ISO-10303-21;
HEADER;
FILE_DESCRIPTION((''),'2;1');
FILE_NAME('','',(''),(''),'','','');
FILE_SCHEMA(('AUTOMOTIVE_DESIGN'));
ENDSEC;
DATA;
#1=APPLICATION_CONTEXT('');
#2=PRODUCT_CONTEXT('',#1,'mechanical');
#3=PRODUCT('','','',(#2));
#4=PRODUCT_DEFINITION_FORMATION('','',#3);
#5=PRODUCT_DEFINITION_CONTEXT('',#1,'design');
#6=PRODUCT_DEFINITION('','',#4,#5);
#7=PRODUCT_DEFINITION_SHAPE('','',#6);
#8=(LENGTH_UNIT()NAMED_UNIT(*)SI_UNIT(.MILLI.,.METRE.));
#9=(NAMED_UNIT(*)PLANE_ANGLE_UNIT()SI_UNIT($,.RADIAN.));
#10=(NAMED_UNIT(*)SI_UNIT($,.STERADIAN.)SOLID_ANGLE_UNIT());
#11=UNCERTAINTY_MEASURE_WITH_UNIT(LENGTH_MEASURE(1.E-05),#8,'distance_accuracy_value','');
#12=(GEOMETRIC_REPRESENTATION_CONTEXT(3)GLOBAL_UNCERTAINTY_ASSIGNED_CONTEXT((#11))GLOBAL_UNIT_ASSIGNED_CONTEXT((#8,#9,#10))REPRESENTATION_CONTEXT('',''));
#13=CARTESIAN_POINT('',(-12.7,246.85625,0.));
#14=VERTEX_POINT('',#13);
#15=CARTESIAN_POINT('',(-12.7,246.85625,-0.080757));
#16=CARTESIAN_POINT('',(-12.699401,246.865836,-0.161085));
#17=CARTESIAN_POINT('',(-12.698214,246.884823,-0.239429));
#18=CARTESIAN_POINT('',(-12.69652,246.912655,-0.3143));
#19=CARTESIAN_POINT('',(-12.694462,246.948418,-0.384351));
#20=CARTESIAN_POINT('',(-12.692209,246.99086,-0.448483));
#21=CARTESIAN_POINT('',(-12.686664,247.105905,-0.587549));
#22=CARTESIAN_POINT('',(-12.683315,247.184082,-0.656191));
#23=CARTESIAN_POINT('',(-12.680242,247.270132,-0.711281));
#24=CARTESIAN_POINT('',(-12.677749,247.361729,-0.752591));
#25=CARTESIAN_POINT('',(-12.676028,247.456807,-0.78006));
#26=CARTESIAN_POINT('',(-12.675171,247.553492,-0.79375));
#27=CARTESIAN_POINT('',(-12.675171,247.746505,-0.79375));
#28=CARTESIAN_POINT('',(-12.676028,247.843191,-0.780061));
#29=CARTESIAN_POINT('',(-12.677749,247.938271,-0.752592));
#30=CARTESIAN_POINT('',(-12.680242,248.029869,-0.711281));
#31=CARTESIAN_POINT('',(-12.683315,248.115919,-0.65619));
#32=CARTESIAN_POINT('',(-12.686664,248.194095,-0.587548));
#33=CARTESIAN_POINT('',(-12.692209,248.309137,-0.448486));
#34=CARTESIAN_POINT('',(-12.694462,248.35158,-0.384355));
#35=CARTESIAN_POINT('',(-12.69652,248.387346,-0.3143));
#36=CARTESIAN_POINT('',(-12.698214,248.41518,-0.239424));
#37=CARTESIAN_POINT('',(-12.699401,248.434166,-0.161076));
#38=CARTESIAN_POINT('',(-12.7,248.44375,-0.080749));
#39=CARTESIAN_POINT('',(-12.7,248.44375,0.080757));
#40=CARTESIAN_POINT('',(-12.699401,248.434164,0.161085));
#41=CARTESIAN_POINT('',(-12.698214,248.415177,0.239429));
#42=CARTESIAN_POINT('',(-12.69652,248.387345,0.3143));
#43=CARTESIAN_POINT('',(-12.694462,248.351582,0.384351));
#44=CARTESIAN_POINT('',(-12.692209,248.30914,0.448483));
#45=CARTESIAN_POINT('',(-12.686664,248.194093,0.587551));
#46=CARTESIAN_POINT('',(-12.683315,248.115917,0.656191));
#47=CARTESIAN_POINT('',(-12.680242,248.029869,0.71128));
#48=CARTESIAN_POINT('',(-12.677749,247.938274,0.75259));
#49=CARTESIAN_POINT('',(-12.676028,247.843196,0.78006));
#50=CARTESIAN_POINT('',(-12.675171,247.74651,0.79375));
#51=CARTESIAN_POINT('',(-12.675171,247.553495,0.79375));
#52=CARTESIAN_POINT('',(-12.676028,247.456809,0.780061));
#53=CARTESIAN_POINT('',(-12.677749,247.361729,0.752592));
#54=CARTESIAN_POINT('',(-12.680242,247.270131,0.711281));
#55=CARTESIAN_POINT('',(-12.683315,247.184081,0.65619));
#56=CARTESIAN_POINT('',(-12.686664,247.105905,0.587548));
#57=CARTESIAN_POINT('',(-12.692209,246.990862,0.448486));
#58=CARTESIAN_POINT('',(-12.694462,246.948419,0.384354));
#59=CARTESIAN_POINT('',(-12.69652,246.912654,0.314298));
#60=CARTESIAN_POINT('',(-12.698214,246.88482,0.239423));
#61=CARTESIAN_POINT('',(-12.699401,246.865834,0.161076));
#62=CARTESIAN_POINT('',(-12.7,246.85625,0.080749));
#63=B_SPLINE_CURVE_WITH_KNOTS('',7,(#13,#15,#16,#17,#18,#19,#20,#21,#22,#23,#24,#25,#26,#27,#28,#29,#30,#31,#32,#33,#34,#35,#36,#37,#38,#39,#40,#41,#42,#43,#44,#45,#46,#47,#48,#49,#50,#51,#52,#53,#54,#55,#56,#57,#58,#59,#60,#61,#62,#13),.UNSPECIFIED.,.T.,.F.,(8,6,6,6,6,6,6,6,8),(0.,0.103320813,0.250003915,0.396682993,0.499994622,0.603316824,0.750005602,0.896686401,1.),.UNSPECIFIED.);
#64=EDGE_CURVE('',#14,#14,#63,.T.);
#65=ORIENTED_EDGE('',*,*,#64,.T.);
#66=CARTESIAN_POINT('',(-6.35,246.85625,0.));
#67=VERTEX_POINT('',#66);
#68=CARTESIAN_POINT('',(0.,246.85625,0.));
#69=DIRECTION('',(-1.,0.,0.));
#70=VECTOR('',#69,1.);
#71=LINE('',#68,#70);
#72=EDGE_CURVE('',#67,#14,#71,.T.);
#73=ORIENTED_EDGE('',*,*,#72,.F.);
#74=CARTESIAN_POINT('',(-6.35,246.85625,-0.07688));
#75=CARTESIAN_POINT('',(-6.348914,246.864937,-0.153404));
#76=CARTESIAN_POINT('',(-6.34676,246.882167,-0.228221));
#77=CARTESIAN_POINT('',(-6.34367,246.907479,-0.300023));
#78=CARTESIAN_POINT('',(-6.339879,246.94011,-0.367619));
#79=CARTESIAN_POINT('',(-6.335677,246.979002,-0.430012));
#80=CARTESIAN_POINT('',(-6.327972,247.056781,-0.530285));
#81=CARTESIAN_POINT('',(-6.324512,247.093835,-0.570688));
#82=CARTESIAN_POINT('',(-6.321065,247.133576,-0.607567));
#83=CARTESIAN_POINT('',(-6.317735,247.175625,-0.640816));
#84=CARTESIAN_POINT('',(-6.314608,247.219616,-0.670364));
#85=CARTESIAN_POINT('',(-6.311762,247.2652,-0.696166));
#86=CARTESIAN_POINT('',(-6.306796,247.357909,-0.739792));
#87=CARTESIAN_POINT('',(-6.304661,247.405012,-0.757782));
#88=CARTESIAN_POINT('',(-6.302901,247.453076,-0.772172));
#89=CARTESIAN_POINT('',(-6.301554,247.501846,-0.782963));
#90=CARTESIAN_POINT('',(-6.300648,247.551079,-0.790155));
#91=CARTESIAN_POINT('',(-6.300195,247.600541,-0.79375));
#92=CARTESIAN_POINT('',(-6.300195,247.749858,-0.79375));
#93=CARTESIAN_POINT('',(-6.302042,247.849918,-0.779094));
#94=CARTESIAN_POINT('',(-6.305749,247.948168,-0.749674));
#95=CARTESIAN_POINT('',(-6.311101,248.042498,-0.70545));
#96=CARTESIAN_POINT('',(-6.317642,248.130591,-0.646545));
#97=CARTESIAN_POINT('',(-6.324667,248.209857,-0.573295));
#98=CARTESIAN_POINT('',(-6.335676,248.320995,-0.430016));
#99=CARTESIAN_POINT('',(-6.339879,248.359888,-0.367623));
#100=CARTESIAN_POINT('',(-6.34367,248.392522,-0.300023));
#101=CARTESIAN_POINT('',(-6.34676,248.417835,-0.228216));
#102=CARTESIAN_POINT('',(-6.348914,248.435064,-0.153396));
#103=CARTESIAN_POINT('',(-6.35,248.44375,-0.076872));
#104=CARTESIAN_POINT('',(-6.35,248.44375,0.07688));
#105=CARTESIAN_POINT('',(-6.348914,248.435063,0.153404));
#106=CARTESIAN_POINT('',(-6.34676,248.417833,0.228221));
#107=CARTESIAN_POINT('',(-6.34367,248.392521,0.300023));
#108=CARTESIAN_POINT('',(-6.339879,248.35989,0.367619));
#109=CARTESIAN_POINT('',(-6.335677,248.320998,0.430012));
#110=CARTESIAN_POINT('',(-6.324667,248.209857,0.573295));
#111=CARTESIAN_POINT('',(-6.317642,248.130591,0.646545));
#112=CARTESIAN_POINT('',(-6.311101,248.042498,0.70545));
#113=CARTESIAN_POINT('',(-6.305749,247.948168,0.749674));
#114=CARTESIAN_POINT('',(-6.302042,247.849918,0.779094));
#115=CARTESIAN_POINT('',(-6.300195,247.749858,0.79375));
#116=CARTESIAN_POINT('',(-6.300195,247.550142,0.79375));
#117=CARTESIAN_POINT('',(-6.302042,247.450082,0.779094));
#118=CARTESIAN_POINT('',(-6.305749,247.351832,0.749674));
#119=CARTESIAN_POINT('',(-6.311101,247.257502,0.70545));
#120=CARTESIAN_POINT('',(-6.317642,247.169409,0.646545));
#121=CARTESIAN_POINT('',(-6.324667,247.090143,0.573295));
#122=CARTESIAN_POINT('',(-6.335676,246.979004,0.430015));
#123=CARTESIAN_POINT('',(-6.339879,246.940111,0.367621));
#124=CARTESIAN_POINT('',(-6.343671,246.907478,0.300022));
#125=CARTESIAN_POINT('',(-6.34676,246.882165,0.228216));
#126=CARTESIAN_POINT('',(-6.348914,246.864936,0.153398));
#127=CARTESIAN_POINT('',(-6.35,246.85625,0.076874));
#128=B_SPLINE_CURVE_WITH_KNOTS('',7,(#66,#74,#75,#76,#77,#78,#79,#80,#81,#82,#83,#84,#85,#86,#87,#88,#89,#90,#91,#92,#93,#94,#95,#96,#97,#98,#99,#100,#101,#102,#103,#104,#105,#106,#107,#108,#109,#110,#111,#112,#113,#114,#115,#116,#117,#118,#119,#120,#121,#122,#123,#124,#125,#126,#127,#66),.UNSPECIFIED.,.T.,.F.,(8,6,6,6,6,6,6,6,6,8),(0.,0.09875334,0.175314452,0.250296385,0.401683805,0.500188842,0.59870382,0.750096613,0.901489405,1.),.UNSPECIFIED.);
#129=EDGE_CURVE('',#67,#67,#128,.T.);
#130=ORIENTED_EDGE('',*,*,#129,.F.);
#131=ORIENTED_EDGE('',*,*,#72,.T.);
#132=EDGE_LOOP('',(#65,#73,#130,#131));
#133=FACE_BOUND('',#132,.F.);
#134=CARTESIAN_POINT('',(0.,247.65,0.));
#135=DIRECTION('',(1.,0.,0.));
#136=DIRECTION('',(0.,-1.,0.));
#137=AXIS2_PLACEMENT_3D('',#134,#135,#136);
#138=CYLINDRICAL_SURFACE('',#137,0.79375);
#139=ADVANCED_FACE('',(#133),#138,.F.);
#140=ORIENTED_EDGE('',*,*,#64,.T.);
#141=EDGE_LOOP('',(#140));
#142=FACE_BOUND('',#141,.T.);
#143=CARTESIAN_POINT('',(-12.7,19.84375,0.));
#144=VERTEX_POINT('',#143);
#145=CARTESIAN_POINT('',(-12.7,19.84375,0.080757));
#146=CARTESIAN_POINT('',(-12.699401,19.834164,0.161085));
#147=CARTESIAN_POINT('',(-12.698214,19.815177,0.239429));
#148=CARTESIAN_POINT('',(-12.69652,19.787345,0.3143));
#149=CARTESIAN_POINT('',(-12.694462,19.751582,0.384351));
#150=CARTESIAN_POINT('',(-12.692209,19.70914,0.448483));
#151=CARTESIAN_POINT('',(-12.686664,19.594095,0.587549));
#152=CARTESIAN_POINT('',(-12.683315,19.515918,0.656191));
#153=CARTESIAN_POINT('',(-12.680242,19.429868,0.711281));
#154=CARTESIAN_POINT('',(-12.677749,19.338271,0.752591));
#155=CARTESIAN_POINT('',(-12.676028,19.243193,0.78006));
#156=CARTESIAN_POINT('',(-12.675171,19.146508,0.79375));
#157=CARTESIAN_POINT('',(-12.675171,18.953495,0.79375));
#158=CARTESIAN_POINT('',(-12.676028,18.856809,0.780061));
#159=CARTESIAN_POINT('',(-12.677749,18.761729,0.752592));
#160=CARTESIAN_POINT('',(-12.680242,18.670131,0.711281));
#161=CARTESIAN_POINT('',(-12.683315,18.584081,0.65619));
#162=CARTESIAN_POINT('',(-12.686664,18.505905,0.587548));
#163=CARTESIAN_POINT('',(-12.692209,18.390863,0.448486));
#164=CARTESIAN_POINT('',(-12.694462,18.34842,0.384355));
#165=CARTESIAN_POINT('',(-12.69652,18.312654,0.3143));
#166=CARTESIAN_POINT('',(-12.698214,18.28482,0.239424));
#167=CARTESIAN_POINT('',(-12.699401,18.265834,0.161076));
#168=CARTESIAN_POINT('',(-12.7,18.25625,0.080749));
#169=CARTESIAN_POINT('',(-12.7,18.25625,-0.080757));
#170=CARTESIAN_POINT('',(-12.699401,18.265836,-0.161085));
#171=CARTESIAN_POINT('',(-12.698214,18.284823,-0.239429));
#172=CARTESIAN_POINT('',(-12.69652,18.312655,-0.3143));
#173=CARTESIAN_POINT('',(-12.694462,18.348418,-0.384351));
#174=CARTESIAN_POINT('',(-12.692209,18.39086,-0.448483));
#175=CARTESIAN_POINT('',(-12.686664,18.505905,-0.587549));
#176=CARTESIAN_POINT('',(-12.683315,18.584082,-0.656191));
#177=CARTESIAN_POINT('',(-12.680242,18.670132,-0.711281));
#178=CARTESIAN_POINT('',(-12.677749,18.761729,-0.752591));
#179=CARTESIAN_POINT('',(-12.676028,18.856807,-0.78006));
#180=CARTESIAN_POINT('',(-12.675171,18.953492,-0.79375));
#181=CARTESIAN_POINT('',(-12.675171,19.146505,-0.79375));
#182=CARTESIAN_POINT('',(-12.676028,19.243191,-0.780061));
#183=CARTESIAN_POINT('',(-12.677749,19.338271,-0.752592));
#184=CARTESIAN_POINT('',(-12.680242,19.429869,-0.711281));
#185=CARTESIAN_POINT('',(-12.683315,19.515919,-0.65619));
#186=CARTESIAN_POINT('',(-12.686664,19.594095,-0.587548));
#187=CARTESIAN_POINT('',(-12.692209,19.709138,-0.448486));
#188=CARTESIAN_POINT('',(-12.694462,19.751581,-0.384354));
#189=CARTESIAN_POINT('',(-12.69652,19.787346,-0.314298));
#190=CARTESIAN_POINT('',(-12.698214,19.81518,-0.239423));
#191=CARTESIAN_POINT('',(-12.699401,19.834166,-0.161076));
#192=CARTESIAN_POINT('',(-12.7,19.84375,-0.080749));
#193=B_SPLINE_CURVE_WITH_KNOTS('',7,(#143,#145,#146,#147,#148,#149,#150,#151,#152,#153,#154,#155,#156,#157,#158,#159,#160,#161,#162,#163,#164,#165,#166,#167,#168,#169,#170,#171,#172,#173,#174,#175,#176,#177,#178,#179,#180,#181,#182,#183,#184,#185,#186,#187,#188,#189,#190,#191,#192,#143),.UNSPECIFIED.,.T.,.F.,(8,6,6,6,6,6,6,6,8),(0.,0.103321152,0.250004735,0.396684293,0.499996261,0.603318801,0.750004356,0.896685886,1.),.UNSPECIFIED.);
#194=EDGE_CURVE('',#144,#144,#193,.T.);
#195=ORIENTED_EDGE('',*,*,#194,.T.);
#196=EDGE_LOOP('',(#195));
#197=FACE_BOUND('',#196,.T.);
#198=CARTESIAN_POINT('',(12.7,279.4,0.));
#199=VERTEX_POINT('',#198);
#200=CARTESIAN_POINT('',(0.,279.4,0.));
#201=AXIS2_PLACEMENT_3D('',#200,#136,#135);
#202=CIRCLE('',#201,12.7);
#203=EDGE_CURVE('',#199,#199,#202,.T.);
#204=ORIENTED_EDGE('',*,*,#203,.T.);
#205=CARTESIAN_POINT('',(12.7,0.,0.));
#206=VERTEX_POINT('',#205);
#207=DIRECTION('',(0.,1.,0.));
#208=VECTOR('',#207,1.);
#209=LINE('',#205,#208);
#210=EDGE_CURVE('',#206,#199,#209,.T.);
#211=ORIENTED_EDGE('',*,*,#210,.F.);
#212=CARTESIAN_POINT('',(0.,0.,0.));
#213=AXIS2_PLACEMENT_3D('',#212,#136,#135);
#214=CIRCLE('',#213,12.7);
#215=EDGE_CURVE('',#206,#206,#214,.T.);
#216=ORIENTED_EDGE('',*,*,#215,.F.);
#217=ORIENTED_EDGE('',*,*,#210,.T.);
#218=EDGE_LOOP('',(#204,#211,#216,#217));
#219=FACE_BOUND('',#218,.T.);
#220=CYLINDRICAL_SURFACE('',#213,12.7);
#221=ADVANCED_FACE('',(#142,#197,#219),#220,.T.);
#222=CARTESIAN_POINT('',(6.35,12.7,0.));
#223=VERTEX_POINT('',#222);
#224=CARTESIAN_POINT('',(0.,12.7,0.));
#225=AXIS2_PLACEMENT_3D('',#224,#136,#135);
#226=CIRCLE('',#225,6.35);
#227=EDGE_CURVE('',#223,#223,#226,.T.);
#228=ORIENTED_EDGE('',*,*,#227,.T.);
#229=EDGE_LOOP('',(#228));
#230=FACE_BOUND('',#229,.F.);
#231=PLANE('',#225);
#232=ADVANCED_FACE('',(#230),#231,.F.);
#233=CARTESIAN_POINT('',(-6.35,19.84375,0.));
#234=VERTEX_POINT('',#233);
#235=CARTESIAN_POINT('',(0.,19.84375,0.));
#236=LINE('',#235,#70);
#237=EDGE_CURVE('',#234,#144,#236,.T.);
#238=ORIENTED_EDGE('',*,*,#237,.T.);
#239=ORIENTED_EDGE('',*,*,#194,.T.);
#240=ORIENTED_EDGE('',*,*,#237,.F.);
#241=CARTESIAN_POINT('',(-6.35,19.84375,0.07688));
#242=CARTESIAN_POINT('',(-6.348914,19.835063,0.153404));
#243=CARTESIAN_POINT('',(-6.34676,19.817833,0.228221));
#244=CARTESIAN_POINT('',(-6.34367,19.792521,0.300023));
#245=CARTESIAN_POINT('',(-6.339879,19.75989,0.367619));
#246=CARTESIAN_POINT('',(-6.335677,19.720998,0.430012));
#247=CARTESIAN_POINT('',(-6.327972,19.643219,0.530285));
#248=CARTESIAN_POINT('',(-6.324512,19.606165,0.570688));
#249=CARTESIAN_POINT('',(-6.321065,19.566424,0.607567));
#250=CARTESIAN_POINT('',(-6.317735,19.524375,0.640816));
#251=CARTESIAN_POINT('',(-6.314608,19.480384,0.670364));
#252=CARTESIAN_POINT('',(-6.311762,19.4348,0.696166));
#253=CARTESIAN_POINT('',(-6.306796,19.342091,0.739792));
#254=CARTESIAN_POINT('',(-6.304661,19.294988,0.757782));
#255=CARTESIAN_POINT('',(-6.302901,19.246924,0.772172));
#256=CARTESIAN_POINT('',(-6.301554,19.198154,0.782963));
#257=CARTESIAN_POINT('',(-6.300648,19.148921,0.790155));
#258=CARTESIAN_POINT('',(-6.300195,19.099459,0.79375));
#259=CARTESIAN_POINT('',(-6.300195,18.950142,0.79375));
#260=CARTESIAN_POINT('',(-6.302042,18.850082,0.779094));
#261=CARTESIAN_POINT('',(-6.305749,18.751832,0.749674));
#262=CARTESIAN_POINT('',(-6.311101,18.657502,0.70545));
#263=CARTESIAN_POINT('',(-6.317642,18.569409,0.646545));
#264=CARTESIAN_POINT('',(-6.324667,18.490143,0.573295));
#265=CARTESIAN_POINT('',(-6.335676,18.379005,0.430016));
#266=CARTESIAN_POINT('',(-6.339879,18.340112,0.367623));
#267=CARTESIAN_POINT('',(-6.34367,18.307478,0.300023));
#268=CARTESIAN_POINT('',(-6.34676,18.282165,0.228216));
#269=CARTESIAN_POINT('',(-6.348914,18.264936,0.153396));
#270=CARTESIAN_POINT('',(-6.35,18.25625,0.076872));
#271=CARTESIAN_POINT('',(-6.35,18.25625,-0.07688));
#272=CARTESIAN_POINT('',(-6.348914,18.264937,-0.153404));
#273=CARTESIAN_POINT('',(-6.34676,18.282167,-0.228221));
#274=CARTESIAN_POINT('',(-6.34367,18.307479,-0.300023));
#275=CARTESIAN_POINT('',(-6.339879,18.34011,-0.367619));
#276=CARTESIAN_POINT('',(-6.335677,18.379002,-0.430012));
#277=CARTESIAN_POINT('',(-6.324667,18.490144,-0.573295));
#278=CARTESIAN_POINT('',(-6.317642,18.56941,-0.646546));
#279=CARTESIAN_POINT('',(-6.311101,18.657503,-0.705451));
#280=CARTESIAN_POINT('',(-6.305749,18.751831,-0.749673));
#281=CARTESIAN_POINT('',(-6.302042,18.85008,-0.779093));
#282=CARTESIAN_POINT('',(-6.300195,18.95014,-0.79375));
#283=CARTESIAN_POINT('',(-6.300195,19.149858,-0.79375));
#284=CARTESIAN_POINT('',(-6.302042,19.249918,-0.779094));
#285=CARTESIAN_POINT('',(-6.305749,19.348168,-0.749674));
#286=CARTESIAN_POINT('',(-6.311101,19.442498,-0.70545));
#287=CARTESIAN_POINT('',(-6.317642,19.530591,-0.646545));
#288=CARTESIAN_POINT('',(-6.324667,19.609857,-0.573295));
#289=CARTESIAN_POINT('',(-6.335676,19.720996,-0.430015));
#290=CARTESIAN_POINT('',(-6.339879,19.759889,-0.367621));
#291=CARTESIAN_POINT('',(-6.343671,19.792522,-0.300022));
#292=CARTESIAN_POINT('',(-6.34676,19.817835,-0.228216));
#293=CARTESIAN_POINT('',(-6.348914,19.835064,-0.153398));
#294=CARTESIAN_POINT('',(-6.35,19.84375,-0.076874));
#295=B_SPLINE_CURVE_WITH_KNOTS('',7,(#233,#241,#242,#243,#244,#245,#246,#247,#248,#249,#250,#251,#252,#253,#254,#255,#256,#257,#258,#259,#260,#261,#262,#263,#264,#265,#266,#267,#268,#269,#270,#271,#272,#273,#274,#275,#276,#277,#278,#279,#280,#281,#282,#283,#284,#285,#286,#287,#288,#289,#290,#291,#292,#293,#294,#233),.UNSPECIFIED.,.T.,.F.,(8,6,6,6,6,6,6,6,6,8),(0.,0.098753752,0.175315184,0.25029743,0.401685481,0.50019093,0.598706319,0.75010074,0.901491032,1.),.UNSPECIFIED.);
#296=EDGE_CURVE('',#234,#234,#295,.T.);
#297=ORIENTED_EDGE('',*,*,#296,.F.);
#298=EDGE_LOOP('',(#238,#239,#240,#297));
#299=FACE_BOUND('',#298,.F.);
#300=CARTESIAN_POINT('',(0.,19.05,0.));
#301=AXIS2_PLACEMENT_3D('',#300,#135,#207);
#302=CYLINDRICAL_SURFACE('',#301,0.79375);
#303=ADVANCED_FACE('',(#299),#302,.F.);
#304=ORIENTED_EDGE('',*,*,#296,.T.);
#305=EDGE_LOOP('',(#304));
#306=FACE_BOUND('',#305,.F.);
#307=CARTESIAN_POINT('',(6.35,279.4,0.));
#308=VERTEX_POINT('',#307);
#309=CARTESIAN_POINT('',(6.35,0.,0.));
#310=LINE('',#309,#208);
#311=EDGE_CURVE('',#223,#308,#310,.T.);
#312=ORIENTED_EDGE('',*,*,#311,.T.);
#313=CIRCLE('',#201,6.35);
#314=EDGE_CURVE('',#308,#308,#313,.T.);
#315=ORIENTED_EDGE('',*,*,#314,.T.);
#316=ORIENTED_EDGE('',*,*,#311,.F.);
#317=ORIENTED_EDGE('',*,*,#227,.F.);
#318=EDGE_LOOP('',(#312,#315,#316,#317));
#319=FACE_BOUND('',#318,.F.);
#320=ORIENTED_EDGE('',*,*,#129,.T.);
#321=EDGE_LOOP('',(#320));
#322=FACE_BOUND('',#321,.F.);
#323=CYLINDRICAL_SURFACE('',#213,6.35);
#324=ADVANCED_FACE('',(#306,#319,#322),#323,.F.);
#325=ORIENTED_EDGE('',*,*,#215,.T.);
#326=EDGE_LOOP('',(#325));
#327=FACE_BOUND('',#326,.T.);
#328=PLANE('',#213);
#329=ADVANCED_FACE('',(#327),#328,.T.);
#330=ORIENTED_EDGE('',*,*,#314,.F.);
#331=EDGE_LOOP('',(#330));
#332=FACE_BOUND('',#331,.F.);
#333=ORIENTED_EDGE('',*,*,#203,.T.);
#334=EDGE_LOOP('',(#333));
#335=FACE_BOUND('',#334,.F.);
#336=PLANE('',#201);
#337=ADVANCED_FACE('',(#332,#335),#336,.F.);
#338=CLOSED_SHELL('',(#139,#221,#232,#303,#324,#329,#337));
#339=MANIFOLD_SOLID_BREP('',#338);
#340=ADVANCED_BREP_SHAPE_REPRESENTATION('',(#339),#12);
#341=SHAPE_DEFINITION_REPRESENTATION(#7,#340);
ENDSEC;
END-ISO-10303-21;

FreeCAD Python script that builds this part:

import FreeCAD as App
import Part
import Sketcher

V = App.Vector
Q = App.Units.Quantity

doc = App.newDocument("Part")
body = doc.addObject("PartDesign::Body", "Body")

sketch1 = body.newObject("Sketcher::SketchObject", "Sketch")
sketch1.AttachmentSupport = (doc.getObject("XZ_Plane"), [""])
sketch1.MapMode = "FlatFace"
sketch1.addGeometry(Part.Circle(V(0, 0, 0), V(0, 0, 1), 13), False)
sketch1.addConstraint(Sketcher.Constraint("Coincident", 0, 3, -1, 1))
sketch1.addConstraint(Sketcher.Constraint("Diameter", 0, Q("1 in")))
pad1 = body.newObject("PartDesign::Pad", "Pad")
pad1.Profile = sketch1
pad1.Length = Q("0.5 in")
pad1.Reversed = True

sketch2 = body.newObject("Sketcher::SketchObject", "Sketch001")
sketch2.AttachmentSupport = (doc.getObject("XZ_Plane"), [""])
sketch2.MapMode = "FlatFace"
sketch2.addGeometry(Part.Circle(V(0, 0, 0), V(0, 0, 1), 13), False)
sketch2.addGeometry(Part.Circle(V(0, 0, 0), V(0, 0, 1), 6), False)
sketch2.addConstraint(Sketcher.Constraint("Coincident", 0, 3, -1, 1))
sketch2.addConstraint(Sketcher.Constraint("Coincident", 1, 3, -1, 1))
sketch2.addConstraint(Sketcher.Constraint("Diameter", 0, Q("1 in")))
sketch2.addConstraint(Sketcher.Constraint("Diameter", 1, Q("0.5 in")))
pad2 = body.newObject("PartDesign::Pad", "Pad001")
pad2.Profile = sketch2
pad2.Length = Q("11 in")
pad2.Reversed = True

sketch3 = body.newObject("Sketcher::SketchObject", "Sketch002")
sketch3.AttachmentSupport = (doc.getObject("YZ_Plane"), [""])
sketch3.MapMode = "FlatFace"
sketch3.addGeometry(Part.Circle(V(19.1, 0, 0), V(0, 0, 1), 0.8), False)
sketch3.addConstraint(Sketcher.Constraint("PointOnObject", 0, 3, -1))
sketch3.addConstraint(Sketcher.Constraint("Diameter", 0, Q("0.0625 in")))
sketch3.addConstraint(Sketcher.Constraint("DistanceX", -1, 1, 0, 3, Q("0.75 in")))
pocket1 = body.newObject("PartDesign::Pocket", "Pocket")
pocket1.Profile = sketch3
pocket1.Length = Q("1 in")

sketch4 = body.newObject("Sketcher::SketchObject", "Sketch003")
sketch4.AttachmentSupport = (doc.getObject("YZ_Plane"), [""])
sketch4.MapMode = "FlatFace"
sketch4.addGeometry(Part.Circle(V(247.7, 0, 0), V(0, 0, 1), 0.8), False)
sketch4.addConstraint(Sketcher.Constraint("PointOnObject", 0, 3, -1))
sketch4.addConstraint(Sketcher.Constraint("Diameter", 0, Q("0.0625 in")))
sketch4.addConstraint(Sketcher.Constraint("DistanceX", -1, 1, 0, 3, Q("9.75 in")))
pocket2 = body.newObject("PartDesign::Pocket", "Pocket001")
pocket2.Profile = sketch4
pocket2.Length = Q("1 in")

doc.recompute()
